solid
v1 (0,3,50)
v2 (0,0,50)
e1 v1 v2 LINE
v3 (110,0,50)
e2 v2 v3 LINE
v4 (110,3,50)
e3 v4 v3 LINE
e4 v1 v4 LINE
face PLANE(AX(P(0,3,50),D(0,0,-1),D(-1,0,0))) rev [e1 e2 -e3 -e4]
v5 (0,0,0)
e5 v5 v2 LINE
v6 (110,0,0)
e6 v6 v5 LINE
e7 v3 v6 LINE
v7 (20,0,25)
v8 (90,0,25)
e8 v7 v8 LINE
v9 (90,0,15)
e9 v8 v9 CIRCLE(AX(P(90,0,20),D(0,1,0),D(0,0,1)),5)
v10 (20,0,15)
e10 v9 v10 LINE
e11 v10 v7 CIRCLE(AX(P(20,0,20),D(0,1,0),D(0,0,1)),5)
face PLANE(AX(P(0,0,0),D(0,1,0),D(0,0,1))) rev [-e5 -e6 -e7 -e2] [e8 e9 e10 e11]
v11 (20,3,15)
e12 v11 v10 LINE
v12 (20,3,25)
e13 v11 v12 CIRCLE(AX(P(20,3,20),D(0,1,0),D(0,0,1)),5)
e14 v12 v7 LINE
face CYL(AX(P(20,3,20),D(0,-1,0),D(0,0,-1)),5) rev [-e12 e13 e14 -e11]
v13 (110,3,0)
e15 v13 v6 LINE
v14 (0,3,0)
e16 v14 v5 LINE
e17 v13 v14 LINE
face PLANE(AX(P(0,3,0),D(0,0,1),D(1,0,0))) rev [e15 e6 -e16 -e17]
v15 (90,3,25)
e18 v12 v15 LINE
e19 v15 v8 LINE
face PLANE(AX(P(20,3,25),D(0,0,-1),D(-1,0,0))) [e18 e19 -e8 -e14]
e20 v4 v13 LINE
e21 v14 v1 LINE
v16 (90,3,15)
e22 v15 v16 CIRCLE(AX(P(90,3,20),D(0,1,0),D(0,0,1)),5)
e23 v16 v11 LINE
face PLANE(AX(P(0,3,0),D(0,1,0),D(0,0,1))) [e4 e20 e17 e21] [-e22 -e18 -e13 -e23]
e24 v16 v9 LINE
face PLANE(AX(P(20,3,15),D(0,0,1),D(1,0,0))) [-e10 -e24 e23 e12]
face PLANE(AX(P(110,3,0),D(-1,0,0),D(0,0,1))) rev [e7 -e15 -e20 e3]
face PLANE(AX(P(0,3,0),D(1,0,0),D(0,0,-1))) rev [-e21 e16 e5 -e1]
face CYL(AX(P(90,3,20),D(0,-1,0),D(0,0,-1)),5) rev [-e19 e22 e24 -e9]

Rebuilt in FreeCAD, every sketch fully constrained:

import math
import FreeCAD as App
import Part
import Sketcher
from FreeCAD import Vector
Q = App.Units.Quantity


def add_polygon(sketch, points):
    """Adds a closed chain of lines whose ends are joined by coincident constraints."""
    first, n = sketch.GeometryCount, len(points)
    for a, b in zip(points, points[1:] + points[:1]):
        sketch.addGeometry(Part.LineSegment(App.Vector(*a, 0), App.Vector(*b, 0)), False)
    for i in range(n):
        sketch.addConstraint(Sketcher.Constraint("Coincident", first + i, 2, first + (i + 1) % n, 1))

doc = App.newDocument("Part")
params = doc.addObject("Spreadsheet::Sheet", "Params")
for row, (alias, value) in enumerate([
    ("sketch1_radius", "5 mm"),
    ("sketch1_width", "110 mm"),
    ("sketch1_width2", "70 mm"),
    ("sketch1_height", "50 mm"),
    ("pad1_length", "3 mm"),
], start=1):
    params.set(f"A{row}", alias)
    params.set(f"B{row}", "=" + value)
    params.setAlias(f"B{row}", alias)

body = doc.addObject("PartDesign::Body", "Body")

# Sketch on XZ plane
sketch1 = body.newObject("Sketcher::SketchObject", "Sketch")
sketch1.AttachmentSupport = (doc.getObject("XZ_Plane"), [""])
sketch1.MapMode = "FlatFace"
add_polygon(sketch1, [(0, 0), (0, 50), (110, 50), (110, 0)])  # lines 0-3
sketch1.addGeometry(Part.ArcOfCircle(Part.Circle(Vector(20, 20, 0), Vector(0, 0, 1), 5), math.radians(90), math.radians(270)), False)  # 4
sketch1.addGeometry(Part.LineSegment(Vector(20, 15, 0), Vector(90, 15, 0)), False)  # 5
sketch1.addGeometry(Part.ArcOfCircle(Part.Circle(Vector(90, 20, 0), Vector(0, 0, 1), 5), math.radians(-90), math.radians(90)), False)  # 6
sketch1.addGeometry(Part.LineSegment(Vector(90, 25, 0), Vector(20, 25, 0)), False)  # 7
sketch1.addConstraint([
    Sketcher.Constraint("Tangent", 4, 2, 5, 1),
    Sketcher.Constraint("Tangent", 5, 2, 6, 1),
    Sketcher.Constraint("Tangent", 6, 2, 7, 1),
    Sketcher.Constraint("Tangent", 7, 2, 4, 1),
    Sketcher.Constraint("Vertical", 0),
    Sketcher.Constraint("Horizontal", 1),
    Sketcher.Constraint("Vertical", 2),
    Sketcher.Constraint("Horizontal", 3),
    Sketcher.Constraint("Horizontal", 5),
    Sketcher.Constraint("Horizontal", 7),
    Sketcher.Constraint("Coincident", 3, 2, -1, 1),
    Sketcher.Constraint("Radius", 4, Q("5 mm")),
    Sketcher.Constraint("DistanceX", 1, 1, 1, 2, Q("110 mm")),
    Sketcher.Constraint("DistanceX", 5, 1, 5, 2, Q("70 mm")),
    Sketcher.Constraint("DistanceY", 0, 1, 0, 2, Q("50 mm")),
    Sketcher.Constraint("DistanceX", -1, 1, 4, 3, Q("20 mm")),
    Sketcher.Constraint("DistanceY", -1, 1, 4, 3, Q("20 mm")),
])
sketch1.setExpression("Constraints[15]", "Params.sketch1_radius")
sketch1.setExpression("Constraints[16]", "Params.sketch1_width")
sketch1.setExpression("Constraints[17]", "Params.sketch1_width2")
sketch1.setExpression("Constraints[18]", "Params.sketch1_height")
pad1 = body.newObject("PartDesign::Pad", "Pad")
pad1.Profile = sketch1
pad1.setExpression("Length", "Params.pad1_length")
pad1.Reversed = True

doc.recompute()
